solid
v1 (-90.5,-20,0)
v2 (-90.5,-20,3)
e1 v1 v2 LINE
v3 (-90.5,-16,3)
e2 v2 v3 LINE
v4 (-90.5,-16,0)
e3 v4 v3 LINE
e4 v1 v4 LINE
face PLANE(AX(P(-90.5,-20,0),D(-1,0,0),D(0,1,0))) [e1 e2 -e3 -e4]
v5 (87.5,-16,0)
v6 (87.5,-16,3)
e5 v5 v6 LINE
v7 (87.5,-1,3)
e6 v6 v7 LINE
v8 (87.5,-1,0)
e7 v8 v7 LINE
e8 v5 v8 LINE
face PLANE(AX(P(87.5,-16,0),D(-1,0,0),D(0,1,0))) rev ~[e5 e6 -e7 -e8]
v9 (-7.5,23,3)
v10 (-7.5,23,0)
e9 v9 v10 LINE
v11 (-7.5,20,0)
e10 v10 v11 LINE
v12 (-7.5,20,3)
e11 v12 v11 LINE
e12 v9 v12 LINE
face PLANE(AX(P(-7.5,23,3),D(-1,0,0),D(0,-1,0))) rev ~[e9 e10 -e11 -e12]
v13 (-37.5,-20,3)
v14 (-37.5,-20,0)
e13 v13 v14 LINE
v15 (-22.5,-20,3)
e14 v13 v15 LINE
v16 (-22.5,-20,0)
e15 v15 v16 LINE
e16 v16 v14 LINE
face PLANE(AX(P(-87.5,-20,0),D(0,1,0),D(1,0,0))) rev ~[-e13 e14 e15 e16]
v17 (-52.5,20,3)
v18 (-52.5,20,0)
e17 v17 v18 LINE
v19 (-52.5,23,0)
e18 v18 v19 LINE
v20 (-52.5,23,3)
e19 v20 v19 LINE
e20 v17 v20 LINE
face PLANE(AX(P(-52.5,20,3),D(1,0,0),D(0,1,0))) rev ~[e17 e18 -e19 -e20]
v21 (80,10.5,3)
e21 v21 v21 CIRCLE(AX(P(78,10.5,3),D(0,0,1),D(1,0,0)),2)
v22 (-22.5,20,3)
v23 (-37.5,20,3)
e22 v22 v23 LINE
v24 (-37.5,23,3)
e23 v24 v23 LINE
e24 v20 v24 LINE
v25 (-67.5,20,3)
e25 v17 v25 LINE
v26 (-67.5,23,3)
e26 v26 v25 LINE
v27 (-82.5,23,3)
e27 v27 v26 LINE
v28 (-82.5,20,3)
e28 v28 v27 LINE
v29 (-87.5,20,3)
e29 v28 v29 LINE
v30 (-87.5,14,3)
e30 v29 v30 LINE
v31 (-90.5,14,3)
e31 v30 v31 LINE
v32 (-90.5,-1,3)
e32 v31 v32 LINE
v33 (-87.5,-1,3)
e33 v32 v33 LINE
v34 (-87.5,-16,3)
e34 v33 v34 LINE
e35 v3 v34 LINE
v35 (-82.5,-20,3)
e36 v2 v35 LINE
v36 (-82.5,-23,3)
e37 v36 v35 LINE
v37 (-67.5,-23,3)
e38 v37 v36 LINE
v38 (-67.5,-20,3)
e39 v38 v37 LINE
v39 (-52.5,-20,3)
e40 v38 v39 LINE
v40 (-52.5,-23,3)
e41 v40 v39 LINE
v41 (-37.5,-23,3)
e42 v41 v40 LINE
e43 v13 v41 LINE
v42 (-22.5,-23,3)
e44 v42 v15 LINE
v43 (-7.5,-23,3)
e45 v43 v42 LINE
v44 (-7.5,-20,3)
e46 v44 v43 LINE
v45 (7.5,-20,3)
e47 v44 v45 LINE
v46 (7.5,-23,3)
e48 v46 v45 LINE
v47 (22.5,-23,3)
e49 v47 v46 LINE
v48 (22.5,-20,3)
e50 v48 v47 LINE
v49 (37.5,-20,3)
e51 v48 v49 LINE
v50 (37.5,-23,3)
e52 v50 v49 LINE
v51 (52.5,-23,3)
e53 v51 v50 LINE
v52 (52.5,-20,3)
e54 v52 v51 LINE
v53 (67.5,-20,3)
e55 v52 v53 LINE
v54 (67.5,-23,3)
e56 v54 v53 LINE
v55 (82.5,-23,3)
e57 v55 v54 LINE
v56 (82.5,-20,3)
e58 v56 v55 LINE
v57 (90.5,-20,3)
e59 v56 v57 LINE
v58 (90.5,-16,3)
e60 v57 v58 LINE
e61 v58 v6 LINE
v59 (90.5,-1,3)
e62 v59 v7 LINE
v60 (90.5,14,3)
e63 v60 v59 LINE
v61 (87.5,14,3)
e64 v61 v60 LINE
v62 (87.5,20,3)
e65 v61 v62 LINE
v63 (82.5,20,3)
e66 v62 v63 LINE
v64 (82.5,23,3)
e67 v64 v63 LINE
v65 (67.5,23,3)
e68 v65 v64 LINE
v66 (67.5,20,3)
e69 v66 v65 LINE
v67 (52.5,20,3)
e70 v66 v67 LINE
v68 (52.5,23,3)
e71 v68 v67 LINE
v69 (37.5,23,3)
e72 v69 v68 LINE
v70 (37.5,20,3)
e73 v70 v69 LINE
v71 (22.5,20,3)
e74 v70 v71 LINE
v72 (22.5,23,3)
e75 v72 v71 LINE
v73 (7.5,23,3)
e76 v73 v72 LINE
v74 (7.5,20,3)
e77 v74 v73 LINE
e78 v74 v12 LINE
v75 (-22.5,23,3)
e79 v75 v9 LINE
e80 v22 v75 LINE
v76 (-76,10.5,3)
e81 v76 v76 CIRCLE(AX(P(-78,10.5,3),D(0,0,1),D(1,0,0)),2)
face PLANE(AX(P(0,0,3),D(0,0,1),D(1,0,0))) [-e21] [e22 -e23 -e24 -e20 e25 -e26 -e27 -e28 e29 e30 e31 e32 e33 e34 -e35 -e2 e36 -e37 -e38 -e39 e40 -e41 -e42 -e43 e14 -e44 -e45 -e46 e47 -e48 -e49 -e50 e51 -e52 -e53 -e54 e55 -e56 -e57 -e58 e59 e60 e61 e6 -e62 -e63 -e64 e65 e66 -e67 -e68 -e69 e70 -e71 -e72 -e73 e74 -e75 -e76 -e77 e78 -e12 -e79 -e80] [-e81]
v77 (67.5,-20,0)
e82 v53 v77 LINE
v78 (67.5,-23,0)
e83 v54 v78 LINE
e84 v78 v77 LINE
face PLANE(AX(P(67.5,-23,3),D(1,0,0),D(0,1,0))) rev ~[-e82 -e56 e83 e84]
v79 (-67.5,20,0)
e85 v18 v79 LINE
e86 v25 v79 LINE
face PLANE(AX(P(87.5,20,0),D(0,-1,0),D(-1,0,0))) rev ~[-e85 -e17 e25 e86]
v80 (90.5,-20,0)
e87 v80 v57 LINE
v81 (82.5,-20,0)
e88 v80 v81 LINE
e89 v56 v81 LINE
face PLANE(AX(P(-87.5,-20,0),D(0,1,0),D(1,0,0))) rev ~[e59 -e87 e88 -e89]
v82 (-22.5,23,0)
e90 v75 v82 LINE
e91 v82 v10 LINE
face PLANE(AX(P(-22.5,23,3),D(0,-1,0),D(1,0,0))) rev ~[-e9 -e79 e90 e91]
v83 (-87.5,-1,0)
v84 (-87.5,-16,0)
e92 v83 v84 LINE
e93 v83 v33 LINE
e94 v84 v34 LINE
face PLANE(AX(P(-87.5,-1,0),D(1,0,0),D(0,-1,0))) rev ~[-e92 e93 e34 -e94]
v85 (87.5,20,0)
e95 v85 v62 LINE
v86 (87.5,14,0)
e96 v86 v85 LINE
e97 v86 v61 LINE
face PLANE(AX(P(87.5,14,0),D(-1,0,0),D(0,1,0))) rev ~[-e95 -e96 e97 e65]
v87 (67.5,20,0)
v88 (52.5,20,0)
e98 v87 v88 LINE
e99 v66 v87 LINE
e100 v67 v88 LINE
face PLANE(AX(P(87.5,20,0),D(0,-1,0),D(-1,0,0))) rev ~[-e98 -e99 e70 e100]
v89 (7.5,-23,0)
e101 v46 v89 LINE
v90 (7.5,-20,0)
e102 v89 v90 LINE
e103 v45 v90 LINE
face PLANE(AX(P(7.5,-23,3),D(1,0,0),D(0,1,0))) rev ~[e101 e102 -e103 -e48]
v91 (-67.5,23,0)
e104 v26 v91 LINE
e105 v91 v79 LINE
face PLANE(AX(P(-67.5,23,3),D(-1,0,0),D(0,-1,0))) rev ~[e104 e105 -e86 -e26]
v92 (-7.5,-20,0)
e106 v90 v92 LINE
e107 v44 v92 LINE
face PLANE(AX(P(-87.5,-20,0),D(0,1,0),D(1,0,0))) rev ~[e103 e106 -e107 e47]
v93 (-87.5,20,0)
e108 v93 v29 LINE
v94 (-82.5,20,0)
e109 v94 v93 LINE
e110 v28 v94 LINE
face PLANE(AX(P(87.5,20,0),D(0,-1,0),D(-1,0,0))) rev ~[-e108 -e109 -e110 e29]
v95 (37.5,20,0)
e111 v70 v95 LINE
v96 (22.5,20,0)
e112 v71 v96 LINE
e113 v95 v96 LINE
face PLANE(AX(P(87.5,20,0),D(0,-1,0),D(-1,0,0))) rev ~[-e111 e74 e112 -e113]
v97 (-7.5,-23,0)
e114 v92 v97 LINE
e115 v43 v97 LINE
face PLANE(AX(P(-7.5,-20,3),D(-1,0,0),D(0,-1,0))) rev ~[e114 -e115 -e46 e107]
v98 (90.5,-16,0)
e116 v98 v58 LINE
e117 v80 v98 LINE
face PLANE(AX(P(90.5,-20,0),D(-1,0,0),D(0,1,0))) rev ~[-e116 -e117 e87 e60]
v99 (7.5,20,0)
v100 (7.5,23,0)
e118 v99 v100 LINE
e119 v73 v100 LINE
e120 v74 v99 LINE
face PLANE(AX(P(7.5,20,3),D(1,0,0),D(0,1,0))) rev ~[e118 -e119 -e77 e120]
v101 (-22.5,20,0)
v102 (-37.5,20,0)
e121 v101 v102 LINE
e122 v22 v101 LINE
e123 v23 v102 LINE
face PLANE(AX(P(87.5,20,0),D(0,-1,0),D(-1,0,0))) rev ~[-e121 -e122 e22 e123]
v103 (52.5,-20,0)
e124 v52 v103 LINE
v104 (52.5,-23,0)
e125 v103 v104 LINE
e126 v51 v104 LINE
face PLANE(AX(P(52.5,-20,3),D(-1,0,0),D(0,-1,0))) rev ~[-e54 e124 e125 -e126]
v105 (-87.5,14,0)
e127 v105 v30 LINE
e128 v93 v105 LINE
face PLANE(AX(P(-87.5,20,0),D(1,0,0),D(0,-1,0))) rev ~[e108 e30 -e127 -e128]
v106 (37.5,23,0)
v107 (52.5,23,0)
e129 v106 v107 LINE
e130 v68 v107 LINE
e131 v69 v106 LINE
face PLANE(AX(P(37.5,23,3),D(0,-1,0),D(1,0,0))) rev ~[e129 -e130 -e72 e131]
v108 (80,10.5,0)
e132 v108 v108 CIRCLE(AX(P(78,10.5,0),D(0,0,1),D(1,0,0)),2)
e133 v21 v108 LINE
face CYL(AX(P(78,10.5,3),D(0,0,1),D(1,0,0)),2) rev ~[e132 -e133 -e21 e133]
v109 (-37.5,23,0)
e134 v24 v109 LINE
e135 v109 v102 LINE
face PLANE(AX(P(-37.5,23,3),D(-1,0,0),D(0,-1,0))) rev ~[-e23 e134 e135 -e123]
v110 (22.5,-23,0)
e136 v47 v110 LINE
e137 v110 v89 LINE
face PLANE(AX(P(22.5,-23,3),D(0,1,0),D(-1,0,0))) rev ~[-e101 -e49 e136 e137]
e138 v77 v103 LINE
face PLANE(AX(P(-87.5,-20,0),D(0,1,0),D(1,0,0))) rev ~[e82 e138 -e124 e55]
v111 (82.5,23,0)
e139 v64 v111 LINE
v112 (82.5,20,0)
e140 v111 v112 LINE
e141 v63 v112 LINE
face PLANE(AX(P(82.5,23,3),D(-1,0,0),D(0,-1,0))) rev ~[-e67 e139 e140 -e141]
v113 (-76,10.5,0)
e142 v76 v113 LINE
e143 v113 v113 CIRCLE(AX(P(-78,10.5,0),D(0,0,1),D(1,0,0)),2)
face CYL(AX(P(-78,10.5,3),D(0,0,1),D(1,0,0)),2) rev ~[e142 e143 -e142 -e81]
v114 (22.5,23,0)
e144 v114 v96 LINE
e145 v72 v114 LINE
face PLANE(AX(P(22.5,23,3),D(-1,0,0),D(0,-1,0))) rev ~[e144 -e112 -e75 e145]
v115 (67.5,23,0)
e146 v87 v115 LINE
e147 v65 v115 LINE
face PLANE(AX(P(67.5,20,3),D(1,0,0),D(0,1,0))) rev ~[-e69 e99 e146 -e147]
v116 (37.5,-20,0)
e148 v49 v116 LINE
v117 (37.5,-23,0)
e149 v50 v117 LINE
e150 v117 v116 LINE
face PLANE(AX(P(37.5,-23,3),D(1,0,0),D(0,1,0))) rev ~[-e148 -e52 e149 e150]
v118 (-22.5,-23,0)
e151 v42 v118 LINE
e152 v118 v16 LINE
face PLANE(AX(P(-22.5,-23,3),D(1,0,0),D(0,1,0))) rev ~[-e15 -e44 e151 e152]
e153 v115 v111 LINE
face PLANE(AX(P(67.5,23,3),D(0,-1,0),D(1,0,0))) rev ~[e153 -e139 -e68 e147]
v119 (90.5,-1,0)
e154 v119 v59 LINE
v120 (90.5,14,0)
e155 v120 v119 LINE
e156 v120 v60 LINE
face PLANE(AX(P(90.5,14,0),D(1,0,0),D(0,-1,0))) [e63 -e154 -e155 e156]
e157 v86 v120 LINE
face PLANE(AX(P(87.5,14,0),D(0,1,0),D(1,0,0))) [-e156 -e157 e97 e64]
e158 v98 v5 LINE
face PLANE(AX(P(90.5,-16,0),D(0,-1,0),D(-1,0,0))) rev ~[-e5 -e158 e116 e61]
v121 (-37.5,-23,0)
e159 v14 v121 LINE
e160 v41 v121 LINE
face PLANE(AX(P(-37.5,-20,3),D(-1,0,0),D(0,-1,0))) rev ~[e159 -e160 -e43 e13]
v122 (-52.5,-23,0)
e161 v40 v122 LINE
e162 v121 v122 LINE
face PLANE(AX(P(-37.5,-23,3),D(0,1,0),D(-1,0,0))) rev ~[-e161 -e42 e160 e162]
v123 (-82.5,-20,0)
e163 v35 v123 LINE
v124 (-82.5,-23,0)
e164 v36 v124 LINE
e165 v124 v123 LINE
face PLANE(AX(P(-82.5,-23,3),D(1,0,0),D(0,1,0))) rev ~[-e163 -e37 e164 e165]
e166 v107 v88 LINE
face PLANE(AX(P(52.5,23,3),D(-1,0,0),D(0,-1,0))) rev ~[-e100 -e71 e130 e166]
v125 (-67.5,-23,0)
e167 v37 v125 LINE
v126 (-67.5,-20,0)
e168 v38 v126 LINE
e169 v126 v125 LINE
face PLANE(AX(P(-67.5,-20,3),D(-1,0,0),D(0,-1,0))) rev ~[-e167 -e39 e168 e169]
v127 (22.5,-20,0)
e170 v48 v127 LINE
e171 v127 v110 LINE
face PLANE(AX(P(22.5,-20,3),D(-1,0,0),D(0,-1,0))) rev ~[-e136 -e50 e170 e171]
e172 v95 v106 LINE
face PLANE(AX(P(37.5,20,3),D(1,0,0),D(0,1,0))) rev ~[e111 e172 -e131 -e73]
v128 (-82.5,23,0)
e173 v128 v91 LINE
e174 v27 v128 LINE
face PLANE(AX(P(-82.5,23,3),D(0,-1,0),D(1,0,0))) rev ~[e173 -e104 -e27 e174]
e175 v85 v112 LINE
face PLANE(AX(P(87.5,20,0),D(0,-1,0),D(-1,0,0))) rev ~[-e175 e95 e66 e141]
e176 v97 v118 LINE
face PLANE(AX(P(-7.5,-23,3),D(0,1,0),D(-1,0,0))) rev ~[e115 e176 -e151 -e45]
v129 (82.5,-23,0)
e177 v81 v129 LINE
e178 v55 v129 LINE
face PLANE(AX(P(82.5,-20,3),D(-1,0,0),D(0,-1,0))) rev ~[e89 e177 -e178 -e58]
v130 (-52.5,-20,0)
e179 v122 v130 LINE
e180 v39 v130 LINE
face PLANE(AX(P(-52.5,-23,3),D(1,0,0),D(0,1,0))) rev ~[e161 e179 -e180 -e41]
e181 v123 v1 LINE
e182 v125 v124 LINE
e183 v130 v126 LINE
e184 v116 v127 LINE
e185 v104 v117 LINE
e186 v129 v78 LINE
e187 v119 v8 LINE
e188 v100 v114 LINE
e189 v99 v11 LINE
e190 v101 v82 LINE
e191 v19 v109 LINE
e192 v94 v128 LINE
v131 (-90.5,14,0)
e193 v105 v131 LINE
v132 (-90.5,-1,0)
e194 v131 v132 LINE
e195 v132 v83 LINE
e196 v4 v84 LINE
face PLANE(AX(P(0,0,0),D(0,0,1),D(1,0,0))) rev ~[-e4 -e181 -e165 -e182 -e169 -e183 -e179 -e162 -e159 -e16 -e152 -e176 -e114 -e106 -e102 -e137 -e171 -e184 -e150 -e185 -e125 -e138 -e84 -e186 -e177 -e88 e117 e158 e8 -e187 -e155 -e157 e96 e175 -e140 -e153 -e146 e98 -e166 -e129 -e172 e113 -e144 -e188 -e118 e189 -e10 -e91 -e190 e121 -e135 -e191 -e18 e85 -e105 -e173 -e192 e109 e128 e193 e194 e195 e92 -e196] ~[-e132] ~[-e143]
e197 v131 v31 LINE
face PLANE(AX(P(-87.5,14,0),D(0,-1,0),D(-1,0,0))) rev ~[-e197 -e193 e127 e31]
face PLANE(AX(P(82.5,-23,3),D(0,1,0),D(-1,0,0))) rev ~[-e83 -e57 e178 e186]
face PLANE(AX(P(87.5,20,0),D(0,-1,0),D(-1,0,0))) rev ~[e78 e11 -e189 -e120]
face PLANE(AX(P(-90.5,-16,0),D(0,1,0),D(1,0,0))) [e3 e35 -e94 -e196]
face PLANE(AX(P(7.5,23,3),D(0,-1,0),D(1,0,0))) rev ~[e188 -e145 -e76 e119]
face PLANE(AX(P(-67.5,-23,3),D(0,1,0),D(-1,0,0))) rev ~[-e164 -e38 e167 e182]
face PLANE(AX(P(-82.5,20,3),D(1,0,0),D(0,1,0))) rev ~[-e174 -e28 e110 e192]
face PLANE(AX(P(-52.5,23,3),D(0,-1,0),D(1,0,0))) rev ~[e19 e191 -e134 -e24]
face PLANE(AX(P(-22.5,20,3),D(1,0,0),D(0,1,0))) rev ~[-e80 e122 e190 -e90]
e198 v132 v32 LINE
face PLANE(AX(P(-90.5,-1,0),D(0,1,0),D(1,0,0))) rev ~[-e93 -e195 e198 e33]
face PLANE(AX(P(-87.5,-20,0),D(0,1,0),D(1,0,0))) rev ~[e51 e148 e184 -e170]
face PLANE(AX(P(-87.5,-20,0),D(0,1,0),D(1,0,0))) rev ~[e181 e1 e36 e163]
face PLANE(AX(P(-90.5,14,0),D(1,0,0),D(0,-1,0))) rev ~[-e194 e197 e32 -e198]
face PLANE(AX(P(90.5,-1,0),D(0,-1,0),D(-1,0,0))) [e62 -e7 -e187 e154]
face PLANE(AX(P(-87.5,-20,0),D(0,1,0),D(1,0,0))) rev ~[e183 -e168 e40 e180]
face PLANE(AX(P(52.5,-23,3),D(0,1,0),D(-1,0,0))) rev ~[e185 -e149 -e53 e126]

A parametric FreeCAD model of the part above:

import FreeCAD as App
import Part
import Sketcher


def add_polygon(sketch, points):
    """Adds a closed chain of lines whose ends are joined by coincident constraints."""
    first, n = sketch.GeometryCount, len(points)
    for a, b in zip(points, points[1:] + points[:1]):
        sketch.addGeometry(Part.LineSegment(App.Vector(*a, 0), App.Vector(*b, 0)), False)
    for i in range(n):
        sketch.addConstraint(Sketcher.Constraint("Coincident", first + i, 2, first + (i + 1) % n, 1))

doc = App.newDocument("Part")
body = doc.addObject("PartDesign::Body", "Body")

# Sketch on XY plane
sketch1 = body.newObject("Sketcher::SketchObject", "Sketch")
sketch1.AttachmentSupport = (doc.getObject("XY_Plane"), [""])
sketch1.MapMode = "FlatFace"
add_polygon(sketch1, [(-87.5, -1), (-87.5, -16), (-90.5, -16), (-90.5, -20), (90.5, -20), (90.5, -16), (87.5, -16), (87.5, -1), (90.5, -1), (90.5, 14), (87.5, 14), (87.5, 20), (-87.5, 20), (-87.5, 14), (-90.5, 14), (-90.5, -1)])  # lines 0-15
sketch1.addConstraint([
    Sketcher.Constraint("Vertical", 0),
    Sketcher.Constraint("Horizontal", 1),
    Sketcher.Constraint("Vertical", 2),
    Sketcher.Constraint("Horizontal", 3),
    Sketcher.Constraint("Vertical", 4),
    Sketcher.Constraint("Horizontal", 5),
    Sketcher.Constraint("Vertical", 6),
    Sketcher.Constraint("Horizontal", 7),
    Sketcher.Constraint("Vertical", 8),
    Sketcher.Constraint("Horizontal", 9),
    Sketcher.Constraint("Vertical", 10),
    Sketcher.Constraint("Horizontal", 11),
    Sketcher.Constraint("Vertical", 12),
    Sketcher.Constraint("Horizontal", 13),
    Sketcher.Constraint("Vertical", 14),
    Sketcher.Constraint("Horizontal", 15),
    Sketcher.Constraint("Symmetric", 1, 2, 4, 2, -2),
    Sketcher.Constraint("Symmetric", 9, 2, 12, 2, -2),
    Sketcher.Constraint("Symmetric", 7, 2, 14, 2, -2),
    Sketcher.Constraint("Vertical", 4, 2, 7, 2),
    Sketcher.Constraint("Vertical", 6, 2, 9, 2),
    Sketcher.Constraint("Vertical", 0, 2, 11, 2),
    Sketcher.Constraint("Equal", 6, 8),
    Sketcher.Constraint("DistanceX", 1, 2, 1, 1, 3.0),
    Sketcher.Constraint("DistanceX", 11, 2, 11, 1, 175.0),
    Sketcher.Constraint("DistanceY", 0, 2, 0, 1, 15.0),
    Sketcher.Constraint("DistanceY", 10, 1, 10, 2, 6.0),
    Sketcher.Constraint("DistanceY", 2, 2, 11, 2, 40.0),
    Sketcher.Constraint("DistanceY", 0, 2, -1, 1, 16.0),
])
pad1 = body.newObject("PartDesign::Pad", "Pad")
pad1.Profile = sketch1
pad1.Length = 3

# Sketch on XY plane
sketch2 = body.newObject("Sketcher::SketchObject", "Sketch001")
sketch2.AttachmentSupport = (doc.getObject("XY_Plane"), [""])
sketch2.MapMode = "FlatFace"
sketch2.AttachmentOffset = App.Placement(App.Vector(0, 0, 3), App.Rotation())
add_polygon(sketch2, [(82.5, -20), (67.5, -20), (67.5, -23), (82.5, -23)])  # lines 0-3
add_polygon(sketch2, [(52.5, -20), (37.5, -20), (37.5, -23), (52.5, -23)])  # lines 4-7
add_polygon(sketch2, [(22.5, -20), (7.5, -20), (7.5, -23), (22.5, -23)])  # lines 8-11
add_polygon(sketch2, [(-7.5, -20), (-22.5, -20), (-22.5, -23), (-7.5, -23)])  # lines 12-15
add_polygon(sketch2, [(-37.5, -20), (-52.5, -20), (-52.5, -23), (-37.5, -23)])  # lines 16-19
add_polygon(sketch2, [(-67.5, -20), (-82.5, -20), (-82.5, -23), (-67.5, -23)])  # lines 20-23
add_polygon(sketch2, [(-67.5, 23), (-82.5, 23), (-82.5, 20), (-67.5, 20)])  # lines 24-27
add_polygon(sketch2, [(-37.5, 23), (-52.5, 23), (-52.5, 20), (-37.5, 20)])  # lines 28-31
add_polygon(sketch2, [(-7.5, 23), (-22.5, 23), (-22.5, 20), (-7.5, 20)])  # lines 32-35
add_polygon(sketch2, [(22.5, 23), (7.5, 23), (7.5, 20), (22.5, 20)])  # lines 36-39
add_polygon(sketch2, [(52.5, 23), (37.5, 23), (37.5, 20), (52.5, 20)])  # lines 40-43
add_polygon(sketch2, [(82.5, 23), (67.5, 23), (67.5, 20), (82.5, 20)])  # lines 44-47
sketch2.addConstraint([
    Sketcher.Constraint("Horizontal", 0),
    Sketcher.Constraint("Vertical", 1),
    Sketcher.Constraint("Horizontal", 2),
    Sketcher.Constraint("Vertical", 3),
    Sketcher.Constraint("Horizontal", 4),
    Sketcher.Constraint("Vertical", 5),
    Sketcher.Constraint("Horizontal", 6),
    Sketcher.Constraint("Vertical", 7),
    Sketcher.Constraint("Horizontal", 8),
    Sketcher.Constraint("Vertical", 9),
    Sketcher.Constraint("Horizontal", 10),
    Sketcher.Constraint("Vertical", 11),
    Sketcher.Constraint("Horizontal", 12),
    Sketcher.Constraint("Vertical", 13),
    Sketcher.Constraint("Horizontal", 14),
    Sketcher.Constraint("Vertical", 15),
    Sketcher.Constraint("Horizontal", 16),
    Sketcher.Constraint("Vertical", 17),
    Sketcher.Constraint("Horizontal", 18),
    Sketcher.Constraint("Vertical", 19),
    Sketcher.Constraint("Horizontal", 20),
    Sketcher.Constraint("Vertical", 21),
    Sketcher.Constraint("Horizontal", 22),
    Sketcher.Constraint("Vertical", 23),
    Sketcher.Constraint("Horizontal", 24),
    Sketcher.Constraint("Vertical", 25),
    Sketcher.Constraint("Horizontal", 26),
    Sketcher.Constraint("Vertical", 27),
    Sketcher.Constraint("Horizontal", 28),
    Sketcher.Constraint("Vertical", 29),
    Sketcher.Constraint("Horizontal", 30),
    Sketcher.Constraint("Vertical", 31),
    Sketcher.Constraint("Horizontal", 32),
    Sketcher.Constraint("Vertical", 33),
    Sketcher.Constraint("Horizontal", 34),
    Sketcher.Constraint("Vertical", 35),
    Sketcher.Constraint("Horizontal", 36),
    Sketcher.Constraint("Vertical", 37),
    Sketcher.Constraint("Horizontal", 38),
    Sketcher.Constraint("Vertical", 39),
    Sketcher.Constraint("Horizontal", 40),
    Sketcher.Constraint("Vertical", 41),
    Sketcher.Constraint("Horizontal", 42),
    Sketcher.Constraint("Vertical", 43),
    Sketcher.Constraint("Horizontal", 44),
    Sketcher.Constraint("Vertical", 45),
    Sketcher.Constraint("Horizontal", 46),
    Sketcher.Constraint("Vertical", 47),
    Sketcher.Constraint("Symmetric", 2, 2, 24, 2, -1, 1),
    Sketcher.Constraint("Symmetric", 0, 2, 26, 2, -1, 1),
    Sketcher.Constraint("Symmetric", 6, 2, 28, 2, -1, 1),
    Sketcher.Constraint("Symmetric", 4, 2, 30, 2, -1, 1),
    Sketcher.Constraint("Symmetric", 10, 2, 32, 2, -1, 1),
    Sketcher.Constraint("Symmetric", 8, 2, 34, 2, -1, 1),
    Sketcher.Constraint("Symmetric", 14, 2, 36, 2, -1, 1),
    Sketcher.Constraint("Symmetric", 12, 2, 38, 2, -1, 1),
    Sketcher.Constraint("Symmetric", 18, 2, 40, 2, -1, 1),
    Sketcher.Constraint("Symmetric", 16, 2, 42, 2, -1, 1),
    Sketcher.Constraint("Symmetric", 22, 2, 44, 2, -1, 1),
    Sketcher.Constraint("Symmetric", 20, 2, 46, 2, -1, 1),
    Sketcher.Constraint("Symmetric", 11, 2, 12, 2, -2),
    Sketcher.Constraint("Symmetric", 9, 2, 14, 2, -2),
    Sketcher.Constraint("Symmetric", 7, 2, 16, 2, -2),
    Sketcher.Constraint("Symmetric", 5, 2, 18, 2, -2),
    Sketcher.Constraint("Symmetric", 3, 2, 20, 2, -2),
    Sketcher.Constraint("Symmetric", 1, 2, 22, 2, -2),
    Sketcher.Constraint("Horizontal", 3, 2, 4, 2),
    Sketcher.Constraint("Horizontal", 2, 2, 5, 2),
    Sketcher.Constraint("Horizontal", 7, 2, 8, 2),
    Sketcher.Constraint("Horizontal", 6, 2, 9, 2),
    Sketcher.Constraint("Equal", 2, 4),
    Sketcher.Constraint("Equal", 6, 8),
    Sketcher.Constraint("DistanceX", 0, 2, 0, 1, 15.0),
    Sketcher.Constraint("DistanceY", 1, 2, 1, 1, 3.0),
    Sketcher.Constraint("DistanceX", 4, 2, 0, 2, 30.0),
    Sketcher.Constraint("DistanceX", 8, 2, 4, 2, 30.0),
    Sketcher.Constraint("DistanceX", 12, 2, 8, 2, 30.0),
    Sketcher.Constraint("DistanceY", 20, 2, 24, 2, 43.0),
])
pad2 = body.newObject("PartDesign::Pad", "Pad001")
pad2.Profile = sketch2
pad2.Length = 3
pad2.Reversed = True

# Sketch on XY plane
sketch3 = body.newObject("Sketcher::SketchObject", "Sketch002")
sketch3.AttachmentSupport = (doc.getObject("XY_Plane"), [""])
sketch3.MapMode = "FlatFace"
sketch3.AttachmentOffset = App.Placement(App.Vector(0, 0, 3), App.Rotation())
sketch3.addGeometry([
    Part.Circle(App.Vector(-78, 10.5, 0), App.Vector(0, 0, 1), 2),
    Part.Circle(App.Vector(78, 10.5, 0), App.Vector(0, 0, 1), 2),
], False)
sketch3.addConstraint([
    Sketcher.Constraint("Equal", 0, 1),
    Sketcher.Constraint("Symmetric", 0, 3, 1, 3, -2),
    Sketcher.Constraint("Diameter", 0, 4.0),
    Sketcher.Constraint("DistanceX", 0, 3, -1, 1, 78.0),
    Sketcher.Constraint("DistanceY", -1, 1, 0, 3, 10.5),
])
pocket1 = body.newObject("PartDesign::Pocket", "Pocket")
pocket1.Profile = sketch3
pocket1.Length = 10

doc.recompute()
